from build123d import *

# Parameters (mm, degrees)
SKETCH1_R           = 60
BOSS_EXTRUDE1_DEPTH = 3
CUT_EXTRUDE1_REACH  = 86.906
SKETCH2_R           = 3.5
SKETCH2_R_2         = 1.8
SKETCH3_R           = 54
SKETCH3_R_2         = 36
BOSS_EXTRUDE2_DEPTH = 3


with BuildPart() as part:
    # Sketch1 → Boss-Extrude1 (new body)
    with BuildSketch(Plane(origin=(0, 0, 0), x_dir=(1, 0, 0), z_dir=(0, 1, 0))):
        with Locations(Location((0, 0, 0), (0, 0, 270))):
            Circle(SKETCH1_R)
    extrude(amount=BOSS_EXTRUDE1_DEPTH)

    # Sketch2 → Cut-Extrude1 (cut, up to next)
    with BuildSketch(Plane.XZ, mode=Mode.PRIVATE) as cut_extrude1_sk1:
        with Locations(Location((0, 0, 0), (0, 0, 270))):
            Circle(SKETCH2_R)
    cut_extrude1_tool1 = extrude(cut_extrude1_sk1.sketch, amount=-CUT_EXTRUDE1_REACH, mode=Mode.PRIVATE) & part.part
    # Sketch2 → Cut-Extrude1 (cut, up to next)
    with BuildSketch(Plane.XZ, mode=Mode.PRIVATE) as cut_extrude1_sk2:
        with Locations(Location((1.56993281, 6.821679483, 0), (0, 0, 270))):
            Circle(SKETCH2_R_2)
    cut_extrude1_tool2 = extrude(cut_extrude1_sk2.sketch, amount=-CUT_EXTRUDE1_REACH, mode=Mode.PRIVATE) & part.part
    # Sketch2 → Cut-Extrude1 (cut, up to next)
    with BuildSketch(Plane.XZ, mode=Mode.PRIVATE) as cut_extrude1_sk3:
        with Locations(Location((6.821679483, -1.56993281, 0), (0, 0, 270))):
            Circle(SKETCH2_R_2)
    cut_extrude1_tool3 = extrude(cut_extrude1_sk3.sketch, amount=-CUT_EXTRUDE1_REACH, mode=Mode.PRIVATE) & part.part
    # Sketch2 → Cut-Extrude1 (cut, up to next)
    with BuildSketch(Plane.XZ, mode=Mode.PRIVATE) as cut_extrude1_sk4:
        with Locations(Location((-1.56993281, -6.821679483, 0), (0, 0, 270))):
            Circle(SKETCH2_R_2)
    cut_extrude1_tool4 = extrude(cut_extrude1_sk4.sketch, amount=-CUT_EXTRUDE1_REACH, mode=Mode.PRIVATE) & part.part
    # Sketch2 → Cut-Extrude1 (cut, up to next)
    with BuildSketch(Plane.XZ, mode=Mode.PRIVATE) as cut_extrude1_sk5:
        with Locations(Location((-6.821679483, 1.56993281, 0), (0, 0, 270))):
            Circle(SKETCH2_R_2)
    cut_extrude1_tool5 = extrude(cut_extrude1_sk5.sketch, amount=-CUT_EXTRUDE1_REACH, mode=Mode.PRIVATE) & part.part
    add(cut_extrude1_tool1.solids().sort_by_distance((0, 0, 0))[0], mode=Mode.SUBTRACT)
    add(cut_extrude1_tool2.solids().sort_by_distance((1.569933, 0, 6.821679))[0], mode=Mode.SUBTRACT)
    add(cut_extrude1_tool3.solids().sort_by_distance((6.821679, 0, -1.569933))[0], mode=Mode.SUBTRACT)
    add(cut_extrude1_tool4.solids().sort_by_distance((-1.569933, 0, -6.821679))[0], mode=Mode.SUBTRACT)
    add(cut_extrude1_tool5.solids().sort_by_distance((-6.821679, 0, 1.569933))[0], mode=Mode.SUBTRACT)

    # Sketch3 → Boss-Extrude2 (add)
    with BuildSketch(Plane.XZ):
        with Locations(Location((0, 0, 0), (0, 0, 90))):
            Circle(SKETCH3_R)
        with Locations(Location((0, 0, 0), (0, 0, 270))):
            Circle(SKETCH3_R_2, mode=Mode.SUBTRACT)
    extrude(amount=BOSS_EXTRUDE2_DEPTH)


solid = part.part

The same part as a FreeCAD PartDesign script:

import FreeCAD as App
import Part
import Sketcher
Q = App.Units.Quantity

doc = App.newDocument("Part")
body = doc.addObject("PartDesign::Body", "Body")

# Sketch on XZ plane
sketch1 = body.newObject("Sketcher::SketchObject", "Sketch")
sketch1.AttachmentSupport = (doc.getObject("XZ_Plane"), [""])
sketch1.MapMode = "FlatFace"
sketch1.addGeometry(Part.Circle(App.Vector(0, 0, 0), App.Vector(0, 0, 1), 60), False)
sketch1.addConstraint(Sketcher.Constraint("Coincident", 0, 3, -1, 1))
sketch1.addConstraint(Sketcher.Constraint("Diameter", 0, Q("120 mm")))
pad1 = body.newObject("PartDesign::Pad", "Pad")
pad1.Profile = sketch1
pad1.Length = 3
pad1.Reversed = True

# Sketch on XZ plane
sketch2 = body.newObject("Sketcher::SketchObject", "Sketch001")
sketch2.AttachmentSupport = (doc.getObject("XZ_Plane"), [""])
sketch2.MapMode = "FlatFace"
sketch2.addGeometry(Part.Circle(App.Vector(0, 0, 0), App.Vector(0, 0, 1), 3.5), False)
sketch2.addConstraint(Sketcher.Constraint("Coincident", 0, 3, -1, 1))
sketch2.addConstraint(Sketcher.Constraint("Diameter", 0, Q("7 mm")))
pocket1 = body.newObject("PartDesign::Pocket", "Pocket")
pocket1.Profile = sketch2
pocket1.Type = "UpToFirst"

# Sketch on XZ plane
sketch3 = body.newObject("Sketcher::SketchObject", "Sketch002")
sketch3.AttachmentSupport = (doc.getObject("XZ_Plane"), [""])
sketch3.MapMode = "FlatFace"
sketch3.addGeometry(Part.Circle(App.Vector(1.6, 6.8, 0), App.Vector(0, 0, 1), 1.8), False)
sketch3.addConstraint(Sketcher.Constraint("Diameter", 0, Q("3.6 mm")))
sketch3.addConstraint(Sketcher.Constraint("DistanceY", -1, 1, 0, 3, Q("6.821679 mm")))
sketch3.addConstraint(Sketcher.Constraint("DistanceX", -1, 1, 0, 3, Q("1.569933 mm")))
pocket2 = body.newObject("PartDesign::Pocket", "Pocket001")
pocket2.Profile = sketch3
pocket2.Type = "UpToFirst"

# Sketch on XZ plane
sketch4 = body.newObject("Sketcher::SketchObject", "Sketch003")
sketch4.AttachmentSupport = (doc.getObject("XZ_Plane"), [""])
sketch4.MapMode = "FlatFace"
sketch4.addGeometry(Part.Circle(App.Vector(6.8, -1.6, 0), App.Vector(0, 0, 1), 1.8), False)
sketch4.addConstraint(Sketcher.Constraint("Diameter", 0, Q("3.6 mm")))
sketch4.addConstraint(Sketcher.Constraint("DistanceX", -1, 1, 0, 3, Q("6.821679 mm")))
sketch4.addConstraint(Sketcher.Constraint("DistanceY", 0, 3, -1, 1, Q("1.569933 mm")))
pocket3 = body.newObject("PartDesign::Pocket", "Pocket002")
pocket3.Profile = sketch4
pocket3.Type = "UpToFirst"

# Sketch on XZ plane
sketch5 = body.newObject("Sketcher::SketchObject", "Sketch004")
sketch5.AttachmentSupport = (doc.getObject("XZ_Plane"), [""])
sketch5.MapMode = "FlatFace"
sketch5.addGeometry(Part.Circle(App.Vector(-1.6, -6.8, 0), App.Vector(0, 0, 1), 1.8), False)
sketch5.addConstraint(Sketcher.Constraint("Diameter", 0, Q("3.6 mm")))
sketch5.addConstraint(Sketcher.Constraint("DistanceY", 0, 3, -1, 1, Q("6.821679 mm")))
sketch5.addConstraint(Sketcher.Constraint("DistanceX", 0, 3, -1, 1, Q("1.569933 mm")))
pocket4 = body.newObject("PartDesign::Pocket", "Pocket003")
pocket4.Profile = sketch5
pocket4.Type = "UpToFirst"

# Sketch on XZ plane
sketch6 = body.newObject("Sketcher::SketchObject", "Sketch005")
sketch6.AttachmentSupport = (doc.getObject("XZ_Plane"), [""])
sketch6.MapMode = "FlatFace"
sketch6.addGeometry(Part.Circle(App.Vector(-6.8, 1.6, 0), App.Vector(0, 0, 1), 1.8), False)
sketch6.addConstraint(Sketcher.Constraint("Diameter", 0, Q("3.6 mm")))
sketch6.addConstraint(Sketcher.Constraint("DistanceX", 0, 3, -1, 1, Q("6.821679 mm")))
sketch6.addConstraint(Sketcher.Constraint("DistanceY", -1, 1, 0, 3, Q("1.569933 mm")))
pocket5 = body.newObject("PartDesign::Pocket", "Pocket004")
pocket5.Profile = sketch6
pocket5.Type = "UpToFirst"

# Sketch on XZ plane
sketch7 = body.newObject("Sketcher::SketchObject", "Sketch006")
sketch7.AttachmentSupport = (doc.getObject("XZ_Plane"), [""])
sketch7.MapMode = "FlatFace"
sketch7.addGeometry(Part.Circle(App.Vector(0, 0, 0), App.Vector(0, 0, 1), 54), False)
sketch7.addGeometry(Part.Circle(App.Vector(0, 0, 0), App.Vector(0, 0, 1), 36), False)
sketch7.addConstraint(Sketcher.Constraint("Coincident", 0, 3, -1, 1))
sketch7.addConstraint(Sketcher.Constraint("Coincident", 1, 3, -1, 1))
sketch7.addConstraint(Sketcher.Constraint("Diameter", 0, Q("108 mm")))
sketch7.addConstraint(Sketcher.Constraint("Diameter", 1, Q("72 mm")))
pad2 = body.newObject("PartDesign::Pad", "Pad001")
pad2.Profile = sketch7
pad2.Length = 3

doc.recompute()
